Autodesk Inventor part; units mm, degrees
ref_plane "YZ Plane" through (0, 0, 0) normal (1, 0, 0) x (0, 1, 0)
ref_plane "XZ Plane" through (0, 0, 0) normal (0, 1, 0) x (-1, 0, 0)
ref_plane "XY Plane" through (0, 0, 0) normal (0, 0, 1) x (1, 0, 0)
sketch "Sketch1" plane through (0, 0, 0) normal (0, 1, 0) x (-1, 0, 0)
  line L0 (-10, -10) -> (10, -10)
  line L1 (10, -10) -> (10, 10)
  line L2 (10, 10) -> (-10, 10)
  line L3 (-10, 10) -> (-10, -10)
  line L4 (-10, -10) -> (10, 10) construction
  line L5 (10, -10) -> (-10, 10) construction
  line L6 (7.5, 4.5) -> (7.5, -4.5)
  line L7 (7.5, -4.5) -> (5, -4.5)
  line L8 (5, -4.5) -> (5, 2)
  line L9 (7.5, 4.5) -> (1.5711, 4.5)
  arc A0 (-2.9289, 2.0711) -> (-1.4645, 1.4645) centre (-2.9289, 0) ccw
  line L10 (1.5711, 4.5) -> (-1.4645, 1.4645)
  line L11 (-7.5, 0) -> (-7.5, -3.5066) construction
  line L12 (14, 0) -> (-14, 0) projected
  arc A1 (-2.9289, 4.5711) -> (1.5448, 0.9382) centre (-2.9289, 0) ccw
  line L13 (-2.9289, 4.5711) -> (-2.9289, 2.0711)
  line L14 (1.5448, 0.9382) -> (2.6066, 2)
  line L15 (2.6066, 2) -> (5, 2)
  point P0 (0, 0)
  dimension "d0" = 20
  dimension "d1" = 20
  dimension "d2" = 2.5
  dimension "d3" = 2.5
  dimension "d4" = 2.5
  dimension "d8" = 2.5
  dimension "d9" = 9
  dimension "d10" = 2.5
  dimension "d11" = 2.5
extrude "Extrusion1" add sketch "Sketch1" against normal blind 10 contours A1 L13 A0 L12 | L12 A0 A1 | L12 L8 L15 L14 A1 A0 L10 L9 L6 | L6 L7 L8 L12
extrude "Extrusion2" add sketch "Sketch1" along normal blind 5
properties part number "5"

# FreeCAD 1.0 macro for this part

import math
import FreeCAD as App
import Part
import Sketcher

V = App.Vector
Q = App.Units.Quantity

doc = App.newDocument("Part")
body = doc.addObject("PartDesign::Body", "Body")

sketch1 = body.newObject("Sketcher::SketchObject", "Sketch")
sketch1.AttachmentSupport = (doc.getObject("XZ_Plane"), [""])
sketch1.MapMode = "FlatFace"
sketch1.addGeometry([
    Part.ArcOfCircle(Part.Circle(V(2.9, 0, 0), V(0, 0, 1), 4.6), math.radians(168), math.radians(450)),
    Part.LineSegment(V(-1.5, 0.9, 0), V(-2.6, 2, 0)),
    Part.LineSegment(V(-2.6, 2, 0), V(-5, 2, 0)),
    Part.LineSegment(V(-5, 2, 0), V(-5, -4.5, 0)),
    Part.LineSegment(V(-5, -4.5, 0), V(-7.5, -4.5, 0)),
    Part.LineSegment(V(-7.5, -4.5, 0), V(-7.5, 4.5, 0)),
    Part.LineSegment(V(-7.5, 4.5, 0), V(-1.6, 4.5, 0)),
    Part.LineSegment(V(-1.6, 4.5, 0), V(1.5, 1.5, 0)),
    Part.ArcOfCircle(Part.Circle(V(2.9, 0, 0), V(0, 0, 1), 2.1), math.radians(135), math.radians(450)),
    Part.LineSegment(V(2.9, 2.1, 0), V(2.9, 4.6, 0)),
], False)
sketch1.addConstraint([
    Sketcher.Constraint("Coincident", 0, 1, 1, 1),
    Sketcher.Constraint("Coincident", 1, 2, 2, 1),
    Sketcher.Constraint("Coincident", 2, 2, 3, 1),
    Sketcher.Constraint("Coincident", 3, 2, 4, 1),
    Sketcher.Constraint("Coincident", 4, 2, 5, 1),
    Sketcher.Constraint("Coincident", 5, 2, 6, 1),
    Sketcher.Constraint("Coincident", 6, 2, 7, 1),
    Sketcher.Constraint("Coincident", 7, 2, 8, 1),
    Sketcher.Constraint("Coincident", 8, 2, 9, 1),
    Sketcher.Constraint("Coincident", 9, 2, 0, 2),
    Sketcher.Constraint("Horizontal", 2),
    Sketcher.Constraint("Vertical", 3),
    Sketcher.Constraint("Horizontal", 4),
    Sketcher.Constraint("Vertical", 5),
    Sketcher.Constraint("Horizontal", 6),
    Sketcher.Constraint("Vertical", 9),
    Sketcher.Constraint("Coincident", 8, 3, 0, 3),
    Sketcher.Constraint("PointOnObject", 0, 3, -1),
    Sketcher.Constraint("Parallel", 1, 7),
    Sketcher.Constraint("Vertical", 0, 3, 8, 2),
    Sketcher.Constraint("Equal", 4, 9),
    Sketcher.Constraint("DistanceY", 5, 1, 5, 2, 9.0),
    Sketcher.Constraint("DistanceX", 4, 2, 4, 1, 2.5),
    Sketcher.Constraint("DistanceY", 2, 2, 5, 2, 2.5),
    Sketcher.Constraint("Angle", 1, Q("135 deg")),
    Sketcher.Constraint("DistanceY", -1, 1, 1, 2, 2.0),
    Sketcher.Constraint("DistanceX", 2, 2, -1, 1, 5.0),
    Sketcher.Constraint("Radius", 0, 4.571),
    Sketcher.Constraint("DistanceX", 6, 2, 0, 3, 4.5),
    Sketcher.Constraint("DistanceX", 6, 1, 6, 2, 5.929),
    Sketcher.Constraint("DistanceX", 2, 2, 2, 1, 2.3934),
])
pad1 = body.newObject("PartDesign::Pad", "Pad")
pad1.Profile = sketch1
pad1.Length = 10

sketch2 = body.newObject("Sketcher::SketchObject", "Sketch001")
sketch2.AttachmentSupport = (doc.getObject("XZ_Plane"), [""])
sketch2.MapMode = "FlatFace"
sketch2.addGeometry([
    Part.LineSegment(V(10, -10, 0), V(-10, -10, 0)),
    Part.LineSegment(V(-10, -10, 0), V(-10, 10, 0)),
    Part.LineSegment(V(-10, 10, 0), V(10, 10, 0)),
    Part.LineSegment(V(10, 10, 0), V(10, -10, 0)),
], False)
sketch2.addConstraint([
    Sketcher.Constraint("Coincident", 0, 2, 1, 1),
    Sketcher.Constraint("Coincident", 1, 2, 2, 1),
    Sketcher.Constraint("Coincident", 2, 2, 3, 1),
    Sketcher.Constraint("Coincident", 3, 2, 0, 1),
    Sketcher.Constraint("Horizontal", 0),
    Sketcher.Constraint("Vertical", 1),
    Sketcher.Constraint("Horizontal", 2),
    Sketcher.Constraint("Vertical", 3),
    Sketcher.Constraint("Symmetric", 0, 2, 2, 2, -1, 1),
    Sketcher.Constraint("Equal", 2, 1),
    Sketcher.Constraint("DistanceX", 0, 2, 0, 1, 20.0),
])
pad2 = body.newObject("PartDesign::Pad", "Pad001")
pad2.Profile = sketch2
pad2.Length = 5
pad2.Reversed = True

doc.recompute()
